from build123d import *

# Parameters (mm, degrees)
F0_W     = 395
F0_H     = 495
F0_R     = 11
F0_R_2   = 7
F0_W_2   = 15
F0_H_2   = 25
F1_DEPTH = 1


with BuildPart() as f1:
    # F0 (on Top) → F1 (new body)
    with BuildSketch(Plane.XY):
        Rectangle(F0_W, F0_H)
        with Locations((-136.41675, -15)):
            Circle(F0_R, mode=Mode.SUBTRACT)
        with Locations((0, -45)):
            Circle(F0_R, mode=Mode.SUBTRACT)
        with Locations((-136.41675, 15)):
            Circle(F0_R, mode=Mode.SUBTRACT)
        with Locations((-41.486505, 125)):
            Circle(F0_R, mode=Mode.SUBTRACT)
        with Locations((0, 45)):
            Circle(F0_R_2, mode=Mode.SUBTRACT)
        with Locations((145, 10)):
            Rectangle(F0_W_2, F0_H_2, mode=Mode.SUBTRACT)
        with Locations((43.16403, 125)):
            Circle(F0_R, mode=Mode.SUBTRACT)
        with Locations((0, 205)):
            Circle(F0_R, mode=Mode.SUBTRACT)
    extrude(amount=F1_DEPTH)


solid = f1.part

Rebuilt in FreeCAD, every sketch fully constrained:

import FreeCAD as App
import Part
import Sketcher
from FreeCAD import Vector
Q = App.Units.Quantity

doc = App.newDocument("Part")
body = doc.addObject("PartDesign::Body", "Body")

# Sketch on XY plane
sketch1 = body.newObject("Sketcher::SketchObject", "Sketch")
sketch1.AttachmentSupport = (doc.getObject("XY_Plane"), [""])
sketch1.MapMode = "FlatFace"
sketch1.addGeometry(Part.LineSegment(Vector(-198, 248, 0), Vector(-198, -248, 0)), False)
sketch1.addGeometry(Part.LineSegment(Vector(-198, -248, 0), Vector(198, -248, 0)), False)
sketch1.addGeometry(Part.LineSegment(Vector(198, -248, 0), Vector(198, 248, 0)), False)
sketch1.addGeometry(Part.LineSegment(Vector(198, 248, 0), Vector(-198, 248, 0)), False)
sketch1.addGeometry(Part.Circle(Vector(-136, -15, 0), Vector(0, 0, 1), 11), False)
sketch1.addGeometry(Part.Circle(Vector(0, -45, 0), Vector(0, 0, 1), 11), False)
sketch1.addGeometry(Part.Circle(Vector(-136, 15, 0), Vector(0, 0, 1), 11), False)
sketch1.addGeometry(Part.Circle(Vector(0, 45, 0), Vector(0, 0, 1), 7), False)
sketch1.addGeometry(Part.LineSegment(Vector(152, -2, 0), Vector(138, -2, 0)), False)
sketch1.addGeometry(Part.LineSegment(Vector(138, -2, 0), Vector(138, 22, 0)), False)
sketch1.addGeometry(Part.LineSegment(Vector(138, 22, 0), Vector(152, 22, 0)), False)
sketch1.addGeometry(Part.LineSegment(Vector(152, 22, 0), Vector(152, -2, 0)), False)
sketch1.addGeometry(Part.Circle(Vector(-41, 125, 0), Vector(0, 0, 1), 11), False)
sketch1.addGeometry(Part.Circle(Vector(0, 205, 0), Vector(0, 0, 1), 11), False)
sketch1.addGeometry(Part.Circle(Vector(43, 125, 0), Vector(0, 0, 1), 11), False)
sketch1.addConstraint(Sketcher.Constraint("Coincident", 0, 2, 1, 1))
sketch1.addConstraint(Sketcher.Constraint("Coincident", 1, 2, 2, 1))
sketch1.addConstraint(Sketcher.Constraint("Coincident", 2, 2, 3, 1))
sketch1.addConstraint(Sketcher.Constraint("Coincident", 3, 2, 0, 1))
sketch1.addConstraint(Sketcher.Constraint("Coincident", 8, 2, 9, 1))
sketch1.addConstraint(Sketcher.Constraint("Coincident", 9, 2, 10, 1))
sketch1.addConstraint(Sketcher.Constraint("Coincident", 10, 2, 11, 1))
sketch1.addConstraint(Sketcher.Constraint("Coincident", 11, 2, 8, 1))
sketch1.addConstraint(Sketcher.Constraint("Vertical", 0))
sketch1.addConstraint(Sketcher.Constraint("Horizontal", 1))
sketch1.addConstraint(Sketcher.Constraint("Vertical", 2))
sketch1.addConstraint(Sketcher.Constraint("Horizontal", 3))
sketch1.addConstraint(Sketcher.Constraint("Horizontal", 8))
sketch1.addConstraint(Sketcher.Constraint("Vertical", 9))
sketch1.addConstraint(Sketcher.Constraint("Horizontal", 10))
sketch1.addConstraint(Sketcher.Constraint("Vertical", 11))
sketch1.addConstraint(Sketcher.Constraint("Equal", 4, 5))
sketch1.addConstraint(Sketcher.Constraint("Equal", 5, 6))
sketch1.addConstraint(Sketcher.Constraint("Equal", 6, 12))
sketch1.addConstraint(Sketcher.Constraint("Equal", 12, 13))
sketch1.addConstraint(Sketcher.Constraint("Equal", 13, 14))
sketch1.addConstraint(Sketcher.Constraint("Symmetric", 5, 3, 7, 3, -1, 1))
sketch1.addConstraint(Sketcher.Constraint("Symmetric", 0, 2, 2, 2, -1, 1))
sketch1.addConstraint(Sketcher.Constraint("Symmetric", 4, 3, 6, 3, -1))
sketch1.addConstraint(Sketcher.Constraint("PointOnObject", 5, 3, -2))
sketch1.addConstraint(Sketcher.Constraint("PointOnObject", 13, 3, -2))
sketch1.addConstraint(Sketcher.Constraint("Horizontal", 12, 3, 14, 3))
sketch1.addConstraint(Sketcher.Constraint("Diameter", 4, Q("22 mm")))
sketch1.addConstraint(Sketcher.Constraint("Diameter", 7, Q("14 mm")))
sketch1.addConstraint(Sketcher.Constraint("DistanceX", 1, 1, 1, 2, Q("395 mm")))
sketch1.addConstraint(Sketcher.Constraint("DistanceX", 8, 2, 8, 1, Q("15 mm")))
sketch1.addConstraint(Sketcher.Constraint("DistanceY", 0, 2, 0, 1, Q("495 mm")))
sketch1.addConstraint(Sketcher.Constraint("DistanceY", 9, 1, 9, 2, Q("25 mm")))
sketch1.addConstraint(Sketcher.Constraint("DistanceY", 4, 3, -1, 1, Q("15 mm")))
sketch1.addConstraint(Sketcher.Constraint("DistanceY", 5, 3, -1, 1, Q("45 mm")))
sketch1.addConstraint(Sketcher.Constraint("DistanceY", -1, 1, 12, 3, Q("125 mm")))
sketch1.addConstraint(Sketcher.Constraint("DistanceY", -1, 1, 13, 3, Q("205 mm")))
sketch1.addConstraint(Sketcher.Constraint("DistanceX", -1, 1, 8, 2, Q("137.5 mm")))
sketch1.addConstraint(Sketcher.Constraint("DistanceY", 8, 2, -1, 1, Q("2.5 mm")))
sketch1.addConstraint(Sketcher.Constraint("DistanceX", 4, 3, -1, 1, Q("136.41675 mm")))
sketch1.addConstraint(Sketcher.Constraint("DistanceX", -1, 1, 14, 3, Q("43.16403 mm")))
sketch1.addConstraint(Sketcher.Constraint("DistanceX", 12, 3, -1, 1, Q("41.486505 mm")))
pad1 = body.newObject("PartDesign::Pad", "Pad")
pad1.Profile = sketch1
pad1.Length = 1

doc.recompute()
